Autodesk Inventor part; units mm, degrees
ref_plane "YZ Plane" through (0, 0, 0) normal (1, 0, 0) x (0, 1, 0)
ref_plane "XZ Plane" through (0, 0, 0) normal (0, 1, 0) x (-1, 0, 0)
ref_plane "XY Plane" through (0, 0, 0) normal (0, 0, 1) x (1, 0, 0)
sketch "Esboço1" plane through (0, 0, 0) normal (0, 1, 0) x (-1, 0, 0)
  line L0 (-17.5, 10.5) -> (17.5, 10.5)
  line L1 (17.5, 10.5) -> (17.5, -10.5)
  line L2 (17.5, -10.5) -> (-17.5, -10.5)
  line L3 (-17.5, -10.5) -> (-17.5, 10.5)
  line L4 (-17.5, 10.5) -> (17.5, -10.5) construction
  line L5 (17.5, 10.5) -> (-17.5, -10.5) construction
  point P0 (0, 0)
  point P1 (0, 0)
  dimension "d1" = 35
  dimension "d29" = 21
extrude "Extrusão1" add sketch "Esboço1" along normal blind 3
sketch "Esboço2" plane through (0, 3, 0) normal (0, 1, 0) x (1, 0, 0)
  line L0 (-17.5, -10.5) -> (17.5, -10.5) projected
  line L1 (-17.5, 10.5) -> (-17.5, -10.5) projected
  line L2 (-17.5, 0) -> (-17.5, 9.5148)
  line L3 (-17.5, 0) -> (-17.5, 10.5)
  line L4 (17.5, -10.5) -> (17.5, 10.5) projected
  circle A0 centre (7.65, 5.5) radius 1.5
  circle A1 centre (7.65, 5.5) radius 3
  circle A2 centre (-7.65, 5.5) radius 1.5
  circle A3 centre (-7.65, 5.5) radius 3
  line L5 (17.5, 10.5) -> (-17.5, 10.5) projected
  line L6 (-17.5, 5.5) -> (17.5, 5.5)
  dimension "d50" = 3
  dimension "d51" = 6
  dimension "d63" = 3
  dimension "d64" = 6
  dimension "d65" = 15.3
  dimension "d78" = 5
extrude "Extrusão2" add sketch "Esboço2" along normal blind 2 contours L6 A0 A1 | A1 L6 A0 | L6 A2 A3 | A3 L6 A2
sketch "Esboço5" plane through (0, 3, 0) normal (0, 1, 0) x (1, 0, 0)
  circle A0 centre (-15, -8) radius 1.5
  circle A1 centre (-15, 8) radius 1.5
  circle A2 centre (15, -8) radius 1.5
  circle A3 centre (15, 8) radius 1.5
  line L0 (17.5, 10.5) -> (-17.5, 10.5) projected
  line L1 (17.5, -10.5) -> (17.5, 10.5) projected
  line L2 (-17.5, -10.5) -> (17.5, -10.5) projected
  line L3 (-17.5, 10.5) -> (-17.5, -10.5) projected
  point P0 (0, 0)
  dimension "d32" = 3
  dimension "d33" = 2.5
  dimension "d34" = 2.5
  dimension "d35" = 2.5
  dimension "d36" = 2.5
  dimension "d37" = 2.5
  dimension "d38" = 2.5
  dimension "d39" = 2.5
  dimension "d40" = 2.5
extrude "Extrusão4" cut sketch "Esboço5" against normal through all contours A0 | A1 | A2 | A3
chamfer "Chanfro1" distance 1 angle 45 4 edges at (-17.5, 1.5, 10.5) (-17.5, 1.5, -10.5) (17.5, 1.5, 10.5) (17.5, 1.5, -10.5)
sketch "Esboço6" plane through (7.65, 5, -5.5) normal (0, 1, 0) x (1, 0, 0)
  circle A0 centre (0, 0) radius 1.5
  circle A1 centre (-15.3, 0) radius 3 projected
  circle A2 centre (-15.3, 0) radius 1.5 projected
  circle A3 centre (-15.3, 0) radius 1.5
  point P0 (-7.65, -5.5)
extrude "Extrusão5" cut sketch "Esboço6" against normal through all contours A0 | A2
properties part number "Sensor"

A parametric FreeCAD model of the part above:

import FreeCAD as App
import Part
import Sketcher
Q = App.Units.Quantity


def edges_at(feature, points):
    """Names of the edges that pass closest to the given points."""
    edges = feature.Shape.Edges
    near = lambda p: min(range(len(edges)), key=lambda i: edges[i].distToShape(Part.Vertex(*p))[0])
    return sorted({f"Edge{near(p) + 1}" for p in points})

doc = App.newDocument("Part")
body = doc.addObject("PartDesign::Body", "Body")

# Sketch on XZ plane
sketch1 = doc.addObject("Sketcher::SketchObject", "Sketch")
body.addObject(sketch1)
sketch1.AttachmentSupport = (doc.XZ_Plane, [""])
sketch1.MapMode = "FlatFace"
sketch1.addGeometry(Part.LineSegment(App.Vector(-17.5, 10.5, 0), App.Vector(17.5, 10.5, 0)), False)
sketch1.addGeometry(Part.LineSegment(App.Vector(17.5, 10.5, 0), App.Vector(17.5, -10.5, 0)), False)
sketch1.addGeometry(Part.LineSegment(App.Vector(17.5, -10.5, 0), App.Vector(-17.5, -10.5, 0)), False)
sketch1.addGeometry(Part.LineSegment(App.Vector(-17.5, -10.5, 0), App.Vector(-17.5, 10.5, 0)), False)
sketch1.addConstraint(Sketcher.Constraint("Coincident", 0, 2, 1, 1))
sketch1.addConstraint(Sketcher.Constraint("Coincident", 1, 2, 2, 1))
sketch1.addConstraint(Sketcher.Constraint("Coincident", 2, 2, 3, 1))
sketch1.addConstraint(Sketcher.Constraint("Coincident", 3, 2, 0, 1))
sketch1.addConstraint(Sketcher.Constraint("Horizontal", 0))
sketch1.addConstraint(Sketcher.Constraint("Vertical", 1))
sketch1.addConstraint(Sketcher.Constraint("Horizontal", 2))
sketch1.addConstraint(Sketcher.Constraint("Vertical", 3))
sketch1.addConstraint(Sketcher.Constraint("Symmetric", 0, 2, 2, 2, -1, 1))
sketch1.addConstraint(Sketcher.Constraint("DistanceX", 0, 1, 0, 2, Q("35 mm")))
sketch1.addConstraint(Sketcher.Constraint("DistanceY", 1, 2, 1, 1, Q("21 mm")))
pad1 = doc.addObject("PartDesign::Pad", "Pad")
body.addObject(pad1)
pad1.Profile = sketch1
pad1.Length = 3
pad1.Reversed = True

# Sketch on XZ plane
sketch2 = doc.addObject("Sketcher::SketchObject", "Sketch001")
body.addObject(sketch2)
sketch2.AttachmentSupport = (doc.XZ_Plane, [""])
sketch2.MapMode = "FlatFace"
sketch2.AttachmentOffset = App.Placement(App.Vector(0, 0, -3), App.Rotation())
sketch2.addGeometry(Part.Circle(App.Vector(7.65, -5.5, 0), App.Vector(0, 0, 1), 3), False)
sketch2.addGeometry(Part.Circle(App.Vector(7.65, -5.5, 0), App.Vector(0, 0, 1), 1.5), False)
sketch2.addGeometry(Part.Circle(App.Vector(-7.65, -5.5, 0), App.Vector(0, 0, 1), 3), False)
sketch2.addGeometry(Part.Circle(App.Vector(-7.65, -5.5, 0), App.Vector(0, 0, 1), 1.5), False)
sketch2.addConstraint(Sketcher.Constraint("Coincident", 1, 3, 0, 3))
sketch2.addConstraint(Sketcher.Constraint("Coincident", 3, 3, 2, 3))
sketch2.addConstraint(Sketcher.Constraint("Equal", 0, 2))
sketch2.addConstraint(Sketcher.Constraint("Equal", 1, 3))
sketch2.addConstraint(Sketcher.Constraint("Symmetric", 0, 3, 2, 3, -2))
sketch2.addConstraint(Sketcher.Constraint("Diameter", 0, Q("6 mm")))
sketch2.addConstraint(Sketcher.Constraint("Diameter", 1, Q("3 mm")))
sketch2.addConstraint(Sketcher.Constraint("DistanceX", 2, 3, 0, 3, Q("15.3 mm")))
sketch2.addConstraint(Sketcher.Constraint("DistanceY", 0, 3, -1, 1, Q("5.5 mm")))
pad2 = doc.addObject("PartDesign::Pad", "Pad001")
body.addObject(pad2)
pad2.Profile = sketch2
pad2.Length = 2
pad2.Reversed = True

# Sketch on XZ plane
sketch3 = doc.addObject("Sketcher::SketchObject", "Sketch002")
body.addObject(sketch3)
sketch3.AttachmentSupport = (doc.XZ_Plane, [""])
sketch3.MapMode = "FlatFace"
sketch3.AttachmentOffset = App.Placement(App.Vector(0, 0, -3), App.Rotation())
sketch3.addGeometry(Part.Circle(App.Vector(-15, 8, 0), App.Vector(0, 0, 1), 1.5), False)
sketch3.addGeometry(Part.Circle(App.Vector(-15, -8, 0), App.Vector(0, 0, 1), 1.5), False)
sketch3.addGeometry(Part.Circle(App.Vector(15, 8, 0), App.Vector(0, 0, 1), 1.5), False)
sketch3.addGeometry(Part.Circle(App.Vector(15, -8, 0), App.Vector(0, 0, 1), 1.5), False)
sketch3.addConstraint(Sketcher.Constraint("Equal", 0, 1))
sketch3.addConstraint(Sketcher.Constraint("Equal", 1, 2))
sketch3.addConstraint(Sketcher.Constraint("Equal", 2, 3))
sketch3.addConstraint(Sketcher.Constraint("Symmetric", 1, 3, 2, 3, -1, 1))
sketch3.addConstraint(Sketcher.Constraint("Symmetric", 0, 3, 3, 3, -1, 1))
sketch3.addConstraint(Sketcher.Constraint("Symmetric", 0, 3, 2, 3, -2))
sketch3.addConstraint(Sketcher.Constraint("Diameter", 0, Q("3 mm")))
sketch3.addConstraint(Sketcher.Constraint("DistanceX", 0, 3, -1, 1, Q("15 mm")))
sketch3.addConstraint(Sketcher.Constraint("DistanceY", -1, 1, 0, 3, Q("8 mm")))
pocket1 = doc.addObject("PartDesign::Pocket", "Pocket")
body.addObject(pocket1)
pocket1.Profile = sketch3
pocket1.Type = "ThroughAll"
pocket1.Reversed = True
doc.recompute()

chamfer = doc.addObject("PartDesign::Chamfer", "Chamfer")
body.addObject(chamfer)
chamfer.Base = (pocket1, edges_at(pocket1, [
    (-17.5, 1.5, 10.5),
    (-17.5, 1.5, -10.5),
    (17.5, 1.5, 10.5),
    (17.5, 1.5, -10.5),
]))
chamfer.Size = 1

# Sketch on XZ plane
sketch4 = doc.addObject("Sketcher::SketchObject", "Sketch003")
body.addObject(sketch4)
sketch4.AttachmentSupport = (doc.XZ_Plane, [""])
sketch4.MapMode = "FlatFace"
sketch4.AttachmentOffset = App.Placement(App.Vector(0, 0, -5), App.Rotation())
sketch4.addGeometry(Part.Circle(App.Vector(7.65, -5.5, 0), App.Vector(0, 0, 1), 1.5), False)
sketch4.addGeometry(Part.Circle(App.Vector(-7.65, -5.5, 0), App.Vector(0, 0, 1), 1.5), False)
sketch4.addConstraint(Sketcher.Constraint("Equal", 0, 1))
sketch4.addConstraint(Sketcher.Constraint("Symmetric", 0, 3, 1, 3, -2))
sketch4.addConstraint(Sketcher.Constraint("Diameter", 0, Q("3 mm")))
sketch4.addConstraint(Sketcher.Constraint("DistanceY", 0, 3, -1, 1, Q("5.5 mm")))
sketch4.addConstraint(Sketcher.Constraint("DistanceX", 1, 3, 0, 3, Q("15.3 mm")))
pocket2 = doc.addObject("PartDesign::Pocket", "Pocket001")
body.addObject(pocket2)
pocket2.Profile = sketch4
pocket2.Type = "ThroughAll"
pocket2.Reversed = True

doc.recompute()
